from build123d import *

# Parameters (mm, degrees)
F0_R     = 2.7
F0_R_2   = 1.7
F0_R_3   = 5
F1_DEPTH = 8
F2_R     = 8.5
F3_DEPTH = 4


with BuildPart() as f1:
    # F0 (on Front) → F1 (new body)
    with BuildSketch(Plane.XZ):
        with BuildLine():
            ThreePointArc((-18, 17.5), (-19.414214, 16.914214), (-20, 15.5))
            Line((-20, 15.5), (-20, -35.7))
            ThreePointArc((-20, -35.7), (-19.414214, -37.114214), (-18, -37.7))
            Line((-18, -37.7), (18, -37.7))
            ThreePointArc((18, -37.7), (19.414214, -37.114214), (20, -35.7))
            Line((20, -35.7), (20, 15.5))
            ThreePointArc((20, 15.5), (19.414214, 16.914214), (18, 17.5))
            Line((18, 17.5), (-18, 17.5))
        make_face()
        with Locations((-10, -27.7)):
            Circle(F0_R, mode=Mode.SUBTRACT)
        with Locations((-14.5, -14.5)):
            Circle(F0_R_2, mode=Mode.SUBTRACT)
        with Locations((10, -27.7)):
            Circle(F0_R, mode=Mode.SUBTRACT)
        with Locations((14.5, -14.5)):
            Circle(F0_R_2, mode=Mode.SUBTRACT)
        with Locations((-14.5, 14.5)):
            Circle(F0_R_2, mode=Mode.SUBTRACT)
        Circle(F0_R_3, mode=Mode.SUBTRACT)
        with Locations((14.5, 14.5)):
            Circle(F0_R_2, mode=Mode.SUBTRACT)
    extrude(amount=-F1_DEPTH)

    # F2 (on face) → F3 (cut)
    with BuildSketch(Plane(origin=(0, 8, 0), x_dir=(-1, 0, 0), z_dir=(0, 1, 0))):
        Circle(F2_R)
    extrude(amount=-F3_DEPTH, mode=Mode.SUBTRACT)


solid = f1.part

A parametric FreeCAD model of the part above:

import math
import FreeCAD as App
import Part
import Sketcher
from FreeCAD import Vector
Q = App.Units.Quantity

doc = App.newDocument("Part")
body = doc.addObject("PartDesign::Body", "Body")

sketch1 = body.newObject("Sketcher::SketchObject", "Sketch")
sketch1.AttachmentSupport = (doc.getObject("XZ_Plane"), [""])
sketch1.MapMode = "FlatFace"
sketch1.addGeometry(Part.ArcOfCircle(Part.Circle(Vector(-18, 15.5, 0), Vector(0, 0, 1), 2), math.radians(90), math.radians(180)), False)
sketch1.addGeometry(Part.LineSegment(Vector(-20, 15.5, 0), Vector(-20, -35.7, 0)), False)
sketch1.addGeometry(Part.ArcOfCircle(Part.Circle(Vector(-18, -35.7, 0), Vector(0, 0, 1), 2), math.radians(180), math.radians(270)), False)
sketch1.addGeometry(Part.LineSegment(Vector(-18, -37.7, 0), Vector(18, -37.7, 0)), False)
sketch1.addGeometry(Part.ArcOfCircle(Part.Circle(Vector(18, -35.7, 0), Vector(0, 0, 1), 2), math.radians(-90), math.radians(0)), False)
sketch1.addGeometry(Part.LineSegment(Vector(20, -35.7, 0), Vector(20, 15.5, 0)), False)
sketch1.addGeometry(Part.ArcOfCircle(Part.Circle(Vector(18, 15.5, 0), Vector(0, 0, 1), 2), math.radians(0), math.radians(90)), False)
sketch1.addGeometry(Part.LineSegment(Vector(18, 17.5, 0), Vector(-18, 17.5, 0)), False)
sketch1.addGeometry(Part.Circle(Vector(-10, -27.7, 0), Vector(0, 0, 1), 2.7), False)
sketch1.addGeometry(Part.Circle(Vector(-14.5, -14.5, 0), Vector(0, 0, 1), 1.7), False)
sketch1.addGeometry(Part.Circle(Vector(10, -27.7, 0), Vector(0, 0, 1), 2.7), False)
sketch1.addGeometry(Part.Circle(Vector(14.5, -14.5, 0), Vector(0, 0, 1), 1.7), False)
sketch1.addGeometry(Part.Circle(Vector(-14.5, 14.5, 0), Vector(0, 0, 1), 1.7), False)
sketch1.addGeometry(Part.Circle(Vector(0, 0, 0), Vector(0, 0, 1), 5), False)
sketch1.addGeometry(Part.Circle(Vector(14.5, 14.5, 0), Vector(0, 0, 1), 1.7), False)
sketch1.addConstraint(Sketcher.Constraint("Tangent", 0, 2, 1, 1))
sketch1.addConstraint(Sketcher.Constraint("Tangent", 1, 2, 2, 1))
sketch1.addConstraint(Sketcher.Constraint("Tangent", 2, 2, 3, 1))
sketch1.addConstraint(Sketcher.Constraint("Tangent", 3, 2, 4, 1))
sketch1.addConstraint(Sketcher.Constraint("Tangent", 4, 2, 5, 1))
sketch1.addConstraint(Sketcher.Constraint("Tangent", 5, 2, 6, 1))
sketch1.addConstraint(Sketcher.Constraint("Tangent", 6, 2, 7, 1))
sketch1.addConstraint(Sketcher.Constraint("Tangent", 7, 2, 0, 1))
sketch1.addConstraint(Sketcher.Constraint("Vertical", 1))
sketch1.addConstraint(Sketcher.Constraint("Horizontal", 3))
sketch1.addConstraint(Sketcher.Constraint("Vertical", 5))
sketch1.addConstraint(Sketcher.Constraint("Horizontal", 7))
sketch1.addConstraint(Sketcher.Constraint("Coincident", 13, 3, -1, 1))
sketch1.addConstraint(Sketcher.Constraint("Equal", 0, 2))
sketch1.addConstraint(Sketcher.Constraint("Equal", 2, 4))
sketch1.addConstraint(Sketcher.Constraint("Equal", 4, 6))
sketch1.addConstraint(Sketcher.Constraint("Equal", 8, 10))
sketch1.addConstraint(Sketcher.Constraint("Equal", 9, 11))
sketch1.addConstraint(Sketcher.Constraint("Equal", 11, 12))
sketch1.addConstraint(Sketcher.Constraint("Equal", 12, 14))
sketch1.addConstraint(Sketcher.Constraint("Symmetric", 11, 3, 12, 3, -1, 1))
sketch1.addConstraint(Sketcher.Constraint("Symmetric", 9, 3, 14, 3, -1, 1))
sketch1.addConstraint(Sketcher.Constraint("Symmetric", 8, 3, 10, 3, -2))
sketch1.addConstraint(Sketcher.Constraint("Symmetric", 9, 3, 11, 3, -2))
sketch1.addConstraint(Sketcher.Constraint("Diameter", 13, Q("10 mm")))
sketch1.addConstraint(Sketcher.Constraint("Radius", 0, Q("1.999999 mm")))
sketch1.addConstraint(Sketcher.Constraint("Diameter", 8, Q("5.4 mm")))
sketch1.addConstraint(Sketcher.Constraint("Diameter", 9, Q("3.4 mm")))
sketch1.addConstraint(Sketcher.Constraint("DistanceX", 3, 1, 3, 2, Q("36 mm")))
sketch1.addConstraint(Sketcher.Constraint("DistanceY", 1, 2, 1, 1, Q("51.2 mm")))
sketch1.addConstraint(Sketcher.Constraint("DistanceX", 0, 3, -1, 1, Q("18.000001 mm")))
sketch1.addConstraint(Sketcher.Constraint("DistanceX", 8, 3, -1, 1, Q("10 mm")))
sketch1.addConstraint(Sketcher.Constraint("DistanceY", 2, 3, 8, 3, Q("8.000001 mm")))
sketch1.addConstraint(Sketcher.Constraint("DistanceY", 9, 3, 0, 3, Q("30.000001 mm")))
sketch1.addConstraint(Sketcher.Constraint("DistanceX", 9, 3, 11, 3, Q("29 mm")))
sketch1.addConstraint(Sketcher.Constraint("DistanceY", 12, 3, 0, 3, Q("1.000001 mm")))
pad1 = body.newObject("PartDesign::Pad", "Pad")
pad1.Profile = sketch1
pad1.Length = 8
pad1.Reversed = True

sketch2 = body.newObject("Sketcher::SketchObject", "Sketch001")
sketch2.AttachmentSupport = (doc.getObject("XZ_Plane"), [""])
sketch2.MapMode = "FlatFace"
sketch2.AttachmentOffset = App.Placement(Vector(0, 0, -8), App.Rotation())
sketch2.addGeometry(Part.Circle(Vector(0, 0, 0), Vector(0, 0, 1), 8), False)
sketch2.addConstraint(Sketcher.Constraint("Coincident", 0, 3, -1, 1))
sketch2.addConstraint(Sketcher.Constraint("Diameter", 0, Q("17 mm")))
pocket1 = body.newObject("PartDesign::Pocket", "Pocket")
pocket1.Profile = sketch2
pocket1.Length = 4
pocket1.Reversed = True

doc.recompute()
